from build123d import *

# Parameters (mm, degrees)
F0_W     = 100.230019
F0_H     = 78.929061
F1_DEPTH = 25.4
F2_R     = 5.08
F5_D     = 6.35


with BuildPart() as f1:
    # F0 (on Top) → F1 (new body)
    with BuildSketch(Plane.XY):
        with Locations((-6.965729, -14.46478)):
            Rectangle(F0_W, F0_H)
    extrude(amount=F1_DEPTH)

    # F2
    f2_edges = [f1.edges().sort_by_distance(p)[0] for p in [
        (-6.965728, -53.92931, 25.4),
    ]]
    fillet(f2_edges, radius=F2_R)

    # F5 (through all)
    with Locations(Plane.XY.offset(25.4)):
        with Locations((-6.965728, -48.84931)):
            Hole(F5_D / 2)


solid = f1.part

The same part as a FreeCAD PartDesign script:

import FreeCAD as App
import Part
import Sketcher
Q = App.Units.Quantity


def edges_at(feature, points):
    """Names of the edges that pass closest to the given points."""
    edges = feature.Shape.Edges
    near = lambda p: min(range(len(edges)), key=lambda i: edges[i].distToShape(Part.Vertex(*p))[0])
    return sorted({f"Edge{near(p) + 1}" for p in points})


def add_polygon(sketch, points):
    """Adds a closed chain of lines whose ends are joined by coincident constraints."""
    first, n = sketch.GeometryCount, len(points)
    for a, b in zip(points, points[1:] + points[:1]):
        sketch.addGeometry(Part.LineSegment(App.Vector(*a, 0), App.Vector(*b, 0)), False)
    for i in range(n):
        sketch.addConstraint(Sketcher.Constraint("Coincident", first + i, 2, first + (i + 1) % n, 1))

doc = App.newDocument("Part")
body = doc.addObject("PartDesign::Body", "Body")

# Sketch on XY plane
sketch1 = doc.addObject("Sketcher::SketchObject", "Sketch")
body.addObject(sketch1)
sketch1.AttachmentSupport = (doc.XY_Plane, [""])
sketch1.MapMode = "FlatFace"
add_polygon(sketch1, [(-57, 25), (-57, -54), (43, -54), (43, 25)])  # lines 0-3
sketch1.addConstraint([
    Sketcher.Constraint("Vertical", 0),
    Sketcher.Constraint("Horizontal", 1),
    Sketcher.Constraint("Vertical", 2),
    Sketcher.Constraint("Horizontal", 3),
    Sketcher.Constraint("DistanceX", 1, 1, 1, 2, Q("100.230019 mm")),
    Sketcher.Constraint("DistanceY", 0, 2, 0, 1, Q("78.929061 mm")),
    Sketcher.Constraint("DistanceX", 0, 2, -1, 1, Q("57.080739 mm")),
    Sketcher.Constraint("DistanceY", 0, 2, -1, 1, Q("53.92931 mm")),
])
pad1 = doc.addObject("PartDesign::Pad", "Pad")
body.addObject(pad1)
pad1.Profile = sketch1
pad1.Length = Q("1 in")
doc.recompute()

fillet = doc.addObject("PartDesign::Fillet", "Fillet")
body.addObject(fillet)
fillet.Base = (pad1, edges_at(pad1, [(-6.966, -53.929, 25.4)]))
fillet.Radius = Q("0.2 in")

# Sketch on XY plane
sketch2 = doc.addObject("Sketcher::SketchObject", "Sketch001")
body.addObject(sketch2)
sketch2.AttachmentSupport = (doc.XY_Plane, [""])
sketch2.MapMode = "FlatFace"
sketch2.AttachmentOffset = App.Placement(App.Vector(0, 0, 1 * 25.4), App.Rotation())
sketch2.addGeometry(Part.Circle(App.Vector(-7, -48.8, 0), App.Vector(0, 0, 1), 3.2), False)
sketch2.addConstraint([
    Sketcher.Constraint("Diameter", 0, Q("0.25 in")),
    Sketcher.Constraint("DistanceX", 0, 3, -1, 1, Q("6.965728 mm")),
    Sketcher.Constraint("DistanceY", 0, 3, -1, 1, Q("48.84931 mm")),
])
doc.recompute()
hole = doc.addObject("PartDesign::Hole", "Hole")
body.addObject(hole)
hole.Profile = sketch2
hole.ThreadType = "None"
hole.Diameter = Q("0.25 in")
hole.DepthType = "ThroughAll"

doc.recompute()
